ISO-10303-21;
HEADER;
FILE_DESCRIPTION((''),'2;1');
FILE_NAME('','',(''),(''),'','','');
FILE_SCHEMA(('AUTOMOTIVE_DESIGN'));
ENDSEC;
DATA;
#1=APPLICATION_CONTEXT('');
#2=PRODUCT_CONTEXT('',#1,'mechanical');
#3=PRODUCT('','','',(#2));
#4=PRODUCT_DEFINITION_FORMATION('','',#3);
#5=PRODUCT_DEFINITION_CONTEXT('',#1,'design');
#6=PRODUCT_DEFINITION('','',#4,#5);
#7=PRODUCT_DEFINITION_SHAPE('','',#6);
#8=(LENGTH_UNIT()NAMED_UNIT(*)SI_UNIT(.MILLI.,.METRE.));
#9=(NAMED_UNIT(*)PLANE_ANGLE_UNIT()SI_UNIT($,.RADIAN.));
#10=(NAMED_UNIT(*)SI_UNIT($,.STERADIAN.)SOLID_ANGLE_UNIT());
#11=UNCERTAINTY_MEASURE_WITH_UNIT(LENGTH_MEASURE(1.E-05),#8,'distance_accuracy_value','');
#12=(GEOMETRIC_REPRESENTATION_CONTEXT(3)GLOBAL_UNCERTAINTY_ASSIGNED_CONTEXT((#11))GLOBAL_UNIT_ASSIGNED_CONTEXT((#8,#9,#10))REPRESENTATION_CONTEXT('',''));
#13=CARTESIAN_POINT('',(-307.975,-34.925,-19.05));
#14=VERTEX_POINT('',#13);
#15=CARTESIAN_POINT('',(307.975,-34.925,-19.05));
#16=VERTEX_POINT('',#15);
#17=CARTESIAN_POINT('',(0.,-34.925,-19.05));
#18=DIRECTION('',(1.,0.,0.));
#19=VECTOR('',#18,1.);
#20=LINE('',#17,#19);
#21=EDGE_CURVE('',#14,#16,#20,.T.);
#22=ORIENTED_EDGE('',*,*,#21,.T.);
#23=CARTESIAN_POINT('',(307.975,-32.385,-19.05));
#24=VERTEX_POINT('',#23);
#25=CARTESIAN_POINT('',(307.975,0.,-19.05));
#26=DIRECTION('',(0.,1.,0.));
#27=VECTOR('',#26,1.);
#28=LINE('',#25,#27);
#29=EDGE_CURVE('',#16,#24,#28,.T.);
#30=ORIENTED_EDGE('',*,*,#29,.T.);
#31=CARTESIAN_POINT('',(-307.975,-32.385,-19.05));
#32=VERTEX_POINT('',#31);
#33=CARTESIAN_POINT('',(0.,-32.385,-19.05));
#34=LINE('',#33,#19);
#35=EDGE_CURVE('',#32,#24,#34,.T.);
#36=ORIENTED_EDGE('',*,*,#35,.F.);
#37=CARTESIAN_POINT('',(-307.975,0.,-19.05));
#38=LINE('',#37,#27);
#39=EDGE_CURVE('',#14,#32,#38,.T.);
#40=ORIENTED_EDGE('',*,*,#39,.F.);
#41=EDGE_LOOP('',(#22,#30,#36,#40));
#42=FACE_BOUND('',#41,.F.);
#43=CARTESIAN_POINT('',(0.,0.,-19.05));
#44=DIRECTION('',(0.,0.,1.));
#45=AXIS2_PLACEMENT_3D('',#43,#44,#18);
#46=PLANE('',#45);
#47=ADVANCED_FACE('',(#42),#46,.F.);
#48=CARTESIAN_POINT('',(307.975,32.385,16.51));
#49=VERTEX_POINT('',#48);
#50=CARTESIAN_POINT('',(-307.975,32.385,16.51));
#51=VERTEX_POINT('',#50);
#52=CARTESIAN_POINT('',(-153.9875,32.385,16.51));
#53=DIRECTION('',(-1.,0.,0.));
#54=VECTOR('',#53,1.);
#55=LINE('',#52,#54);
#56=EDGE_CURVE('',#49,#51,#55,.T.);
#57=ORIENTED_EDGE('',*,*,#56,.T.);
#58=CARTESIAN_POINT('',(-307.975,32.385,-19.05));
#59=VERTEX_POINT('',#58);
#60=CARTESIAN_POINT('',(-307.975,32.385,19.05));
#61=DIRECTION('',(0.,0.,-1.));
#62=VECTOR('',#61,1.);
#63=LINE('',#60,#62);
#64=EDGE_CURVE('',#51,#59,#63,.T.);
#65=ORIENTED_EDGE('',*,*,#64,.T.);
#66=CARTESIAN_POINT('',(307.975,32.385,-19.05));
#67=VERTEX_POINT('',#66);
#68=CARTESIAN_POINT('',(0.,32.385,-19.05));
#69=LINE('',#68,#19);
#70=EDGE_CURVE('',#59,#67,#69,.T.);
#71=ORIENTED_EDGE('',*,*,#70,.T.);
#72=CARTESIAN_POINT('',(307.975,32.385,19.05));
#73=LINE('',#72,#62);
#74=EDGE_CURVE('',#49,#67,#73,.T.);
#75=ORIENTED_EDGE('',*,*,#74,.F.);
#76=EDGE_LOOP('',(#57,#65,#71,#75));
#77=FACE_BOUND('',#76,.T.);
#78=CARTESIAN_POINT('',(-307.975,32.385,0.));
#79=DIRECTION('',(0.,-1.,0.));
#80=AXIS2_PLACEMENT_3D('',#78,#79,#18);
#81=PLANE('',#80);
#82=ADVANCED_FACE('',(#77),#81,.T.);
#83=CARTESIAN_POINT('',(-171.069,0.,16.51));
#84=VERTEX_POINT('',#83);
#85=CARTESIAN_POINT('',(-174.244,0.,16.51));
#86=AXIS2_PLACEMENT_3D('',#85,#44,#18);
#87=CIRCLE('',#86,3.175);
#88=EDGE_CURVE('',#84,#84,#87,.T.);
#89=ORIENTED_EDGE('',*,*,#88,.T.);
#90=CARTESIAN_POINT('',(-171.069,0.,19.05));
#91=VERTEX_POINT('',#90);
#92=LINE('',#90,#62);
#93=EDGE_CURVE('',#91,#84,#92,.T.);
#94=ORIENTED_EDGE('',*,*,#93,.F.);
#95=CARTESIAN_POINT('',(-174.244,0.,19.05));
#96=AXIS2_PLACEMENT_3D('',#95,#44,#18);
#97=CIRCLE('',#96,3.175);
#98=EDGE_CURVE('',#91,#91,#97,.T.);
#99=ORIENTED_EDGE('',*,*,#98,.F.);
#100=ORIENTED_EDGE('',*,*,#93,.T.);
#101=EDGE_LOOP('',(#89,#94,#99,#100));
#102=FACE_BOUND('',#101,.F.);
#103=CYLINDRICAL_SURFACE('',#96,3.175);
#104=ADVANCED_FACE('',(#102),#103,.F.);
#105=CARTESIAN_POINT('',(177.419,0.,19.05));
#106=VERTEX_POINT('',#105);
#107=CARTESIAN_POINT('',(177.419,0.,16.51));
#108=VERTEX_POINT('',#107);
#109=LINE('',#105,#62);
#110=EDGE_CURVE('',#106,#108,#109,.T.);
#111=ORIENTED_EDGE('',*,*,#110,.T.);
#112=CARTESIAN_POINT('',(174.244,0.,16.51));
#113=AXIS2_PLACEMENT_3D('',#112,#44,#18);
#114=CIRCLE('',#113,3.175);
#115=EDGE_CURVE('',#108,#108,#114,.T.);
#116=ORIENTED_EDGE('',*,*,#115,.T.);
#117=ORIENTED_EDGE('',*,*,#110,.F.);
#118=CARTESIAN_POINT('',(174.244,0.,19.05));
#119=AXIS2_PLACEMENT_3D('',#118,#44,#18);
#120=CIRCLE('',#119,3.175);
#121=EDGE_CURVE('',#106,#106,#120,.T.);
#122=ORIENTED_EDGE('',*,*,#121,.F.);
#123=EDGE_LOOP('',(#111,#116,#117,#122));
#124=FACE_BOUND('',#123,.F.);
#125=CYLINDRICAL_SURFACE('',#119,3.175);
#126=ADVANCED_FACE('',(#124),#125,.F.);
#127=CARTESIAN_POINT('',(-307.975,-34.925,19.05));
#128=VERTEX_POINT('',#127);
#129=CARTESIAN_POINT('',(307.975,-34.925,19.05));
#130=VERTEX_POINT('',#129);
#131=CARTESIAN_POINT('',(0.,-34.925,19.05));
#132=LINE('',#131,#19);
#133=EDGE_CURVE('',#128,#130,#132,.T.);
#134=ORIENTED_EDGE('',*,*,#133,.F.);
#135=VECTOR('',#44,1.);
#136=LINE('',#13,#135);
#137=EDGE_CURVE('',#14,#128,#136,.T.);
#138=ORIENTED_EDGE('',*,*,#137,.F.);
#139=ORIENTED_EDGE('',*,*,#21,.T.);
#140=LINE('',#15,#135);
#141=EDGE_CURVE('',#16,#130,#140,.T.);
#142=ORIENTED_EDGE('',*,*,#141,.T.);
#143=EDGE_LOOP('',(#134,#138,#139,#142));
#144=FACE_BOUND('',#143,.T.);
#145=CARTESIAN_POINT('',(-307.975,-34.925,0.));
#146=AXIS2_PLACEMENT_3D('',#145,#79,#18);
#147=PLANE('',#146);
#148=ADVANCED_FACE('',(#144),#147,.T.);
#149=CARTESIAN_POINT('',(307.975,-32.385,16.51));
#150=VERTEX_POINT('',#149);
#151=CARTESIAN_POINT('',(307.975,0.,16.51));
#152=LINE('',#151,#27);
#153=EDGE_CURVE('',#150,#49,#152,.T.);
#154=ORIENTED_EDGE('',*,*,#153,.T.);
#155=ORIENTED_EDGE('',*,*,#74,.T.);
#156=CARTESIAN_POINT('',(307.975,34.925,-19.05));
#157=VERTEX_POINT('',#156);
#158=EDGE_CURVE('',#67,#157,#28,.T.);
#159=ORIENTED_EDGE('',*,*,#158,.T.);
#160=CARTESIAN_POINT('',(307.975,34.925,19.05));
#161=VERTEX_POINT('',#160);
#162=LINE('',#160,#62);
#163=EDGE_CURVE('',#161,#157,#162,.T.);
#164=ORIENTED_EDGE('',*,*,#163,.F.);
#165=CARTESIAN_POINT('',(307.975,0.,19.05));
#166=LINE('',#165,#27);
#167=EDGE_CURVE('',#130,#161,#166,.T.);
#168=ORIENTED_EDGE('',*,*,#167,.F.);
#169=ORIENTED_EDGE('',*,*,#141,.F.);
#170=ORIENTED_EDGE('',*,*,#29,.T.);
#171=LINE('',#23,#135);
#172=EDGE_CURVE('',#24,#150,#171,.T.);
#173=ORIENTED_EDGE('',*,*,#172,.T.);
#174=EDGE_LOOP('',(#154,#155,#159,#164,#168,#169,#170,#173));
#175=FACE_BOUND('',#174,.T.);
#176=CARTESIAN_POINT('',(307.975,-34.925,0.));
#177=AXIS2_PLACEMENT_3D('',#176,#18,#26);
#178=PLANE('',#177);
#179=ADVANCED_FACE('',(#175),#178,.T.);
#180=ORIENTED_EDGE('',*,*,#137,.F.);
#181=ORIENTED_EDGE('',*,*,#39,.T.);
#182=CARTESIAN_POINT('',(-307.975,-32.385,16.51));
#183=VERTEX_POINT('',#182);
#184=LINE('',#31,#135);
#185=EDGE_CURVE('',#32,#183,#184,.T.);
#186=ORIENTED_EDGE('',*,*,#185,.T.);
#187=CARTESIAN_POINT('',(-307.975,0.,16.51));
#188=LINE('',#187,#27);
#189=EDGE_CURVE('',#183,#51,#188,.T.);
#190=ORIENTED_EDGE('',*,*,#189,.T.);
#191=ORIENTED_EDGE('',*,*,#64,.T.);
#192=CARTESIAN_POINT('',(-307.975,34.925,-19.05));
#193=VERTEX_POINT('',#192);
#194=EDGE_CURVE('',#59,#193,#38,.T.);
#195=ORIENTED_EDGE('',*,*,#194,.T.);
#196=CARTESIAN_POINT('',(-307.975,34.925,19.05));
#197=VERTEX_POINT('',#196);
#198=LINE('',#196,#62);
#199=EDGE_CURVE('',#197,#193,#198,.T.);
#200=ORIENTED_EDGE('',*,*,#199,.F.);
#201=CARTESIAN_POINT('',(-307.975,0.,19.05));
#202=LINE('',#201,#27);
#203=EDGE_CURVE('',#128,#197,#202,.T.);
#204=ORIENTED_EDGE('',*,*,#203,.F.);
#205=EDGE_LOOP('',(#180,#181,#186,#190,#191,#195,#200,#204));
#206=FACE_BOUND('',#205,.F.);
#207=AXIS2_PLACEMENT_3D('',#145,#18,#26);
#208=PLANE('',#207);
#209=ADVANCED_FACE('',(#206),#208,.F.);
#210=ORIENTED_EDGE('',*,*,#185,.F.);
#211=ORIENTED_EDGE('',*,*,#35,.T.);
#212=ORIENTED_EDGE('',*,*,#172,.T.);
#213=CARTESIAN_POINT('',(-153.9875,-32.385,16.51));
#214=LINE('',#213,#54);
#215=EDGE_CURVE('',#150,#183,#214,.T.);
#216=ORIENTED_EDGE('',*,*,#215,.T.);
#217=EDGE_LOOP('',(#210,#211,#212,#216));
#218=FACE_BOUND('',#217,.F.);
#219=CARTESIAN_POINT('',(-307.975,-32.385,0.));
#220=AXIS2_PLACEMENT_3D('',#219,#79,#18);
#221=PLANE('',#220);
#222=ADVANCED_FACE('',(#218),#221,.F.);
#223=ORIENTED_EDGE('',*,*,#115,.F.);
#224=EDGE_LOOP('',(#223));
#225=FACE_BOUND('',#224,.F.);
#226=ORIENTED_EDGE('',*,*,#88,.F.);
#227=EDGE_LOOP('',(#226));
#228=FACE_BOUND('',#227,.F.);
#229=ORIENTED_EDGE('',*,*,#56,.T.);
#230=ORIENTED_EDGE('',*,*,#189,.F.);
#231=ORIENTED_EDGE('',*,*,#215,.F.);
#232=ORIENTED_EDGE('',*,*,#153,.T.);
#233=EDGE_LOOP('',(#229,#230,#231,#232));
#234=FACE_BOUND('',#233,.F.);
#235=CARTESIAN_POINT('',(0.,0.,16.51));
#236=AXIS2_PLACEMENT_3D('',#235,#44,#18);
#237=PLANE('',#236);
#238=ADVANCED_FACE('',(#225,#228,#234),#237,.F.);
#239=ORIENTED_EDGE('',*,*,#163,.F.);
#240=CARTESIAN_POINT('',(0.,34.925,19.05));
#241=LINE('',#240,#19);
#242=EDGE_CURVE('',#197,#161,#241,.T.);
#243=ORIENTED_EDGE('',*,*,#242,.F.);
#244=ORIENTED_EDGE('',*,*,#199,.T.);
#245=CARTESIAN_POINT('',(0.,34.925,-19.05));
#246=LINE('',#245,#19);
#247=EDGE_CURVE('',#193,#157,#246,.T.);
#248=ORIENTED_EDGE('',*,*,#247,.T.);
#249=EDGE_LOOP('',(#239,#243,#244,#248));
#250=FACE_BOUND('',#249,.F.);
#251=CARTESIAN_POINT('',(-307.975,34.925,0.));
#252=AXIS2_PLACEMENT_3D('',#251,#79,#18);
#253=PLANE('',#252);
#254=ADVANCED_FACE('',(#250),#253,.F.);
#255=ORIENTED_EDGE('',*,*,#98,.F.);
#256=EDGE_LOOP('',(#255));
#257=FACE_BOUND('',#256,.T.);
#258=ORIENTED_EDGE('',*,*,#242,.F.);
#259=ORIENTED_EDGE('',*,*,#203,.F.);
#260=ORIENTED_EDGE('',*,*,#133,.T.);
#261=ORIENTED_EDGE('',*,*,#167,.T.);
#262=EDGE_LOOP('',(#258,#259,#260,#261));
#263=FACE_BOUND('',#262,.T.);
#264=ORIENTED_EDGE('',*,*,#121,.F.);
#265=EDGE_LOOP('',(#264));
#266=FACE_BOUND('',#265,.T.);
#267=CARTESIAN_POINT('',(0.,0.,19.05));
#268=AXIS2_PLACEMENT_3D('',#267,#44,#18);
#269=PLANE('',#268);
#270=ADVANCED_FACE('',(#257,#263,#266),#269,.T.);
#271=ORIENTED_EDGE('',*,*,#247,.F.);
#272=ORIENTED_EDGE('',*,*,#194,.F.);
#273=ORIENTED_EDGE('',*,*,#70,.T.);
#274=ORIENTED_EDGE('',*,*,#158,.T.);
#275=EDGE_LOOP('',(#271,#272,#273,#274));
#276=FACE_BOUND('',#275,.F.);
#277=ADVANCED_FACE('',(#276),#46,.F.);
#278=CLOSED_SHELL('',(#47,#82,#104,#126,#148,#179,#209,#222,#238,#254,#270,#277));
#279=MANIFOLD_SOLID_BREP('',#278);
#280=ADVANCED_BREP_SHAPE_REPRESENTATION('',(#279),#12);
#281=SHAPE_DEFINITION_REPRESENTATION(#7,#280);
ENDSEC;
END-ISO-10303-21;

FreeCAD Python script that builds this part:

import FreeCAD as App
import Part
import Sketcher
Q = App.Units.Quantity


def faces_at(feature, points):
    """Names of the faces that lie closest to the given points."""
    faces = feature.Shape.Faces
    near = lambda p: min(range(len(faces)), key=lambda i: faces[i].distToShape(Part.Vertex(*p))[0])
    return sorted({f"Face{near(p) + 1}" for p in points})


def add_polygon(sketch, points):
    """Adds a closed chain of lines whose ends are joined by coincident constraints."""
    first, n = sketch.GeometryCount, len(points)
    for a, b in zip(points, points[1:] + points[:1]):
        sketch.addGeometry(Part.LineSegment(App.Vector(*a, 0), App.Vector(*b, 0)), False)
    for i in range(n):
        sketch.addConstraint(Sketcher.Constraint("Coincident", first + i, 2, first + (i + 1) % n, 1))

doc = App.newDocument("Part")
body = doc.addObject("PartDesign::Body", "Body")

sketch1 = body.newObject("Sketcher::SketchObject", "Sketch")
sketch1.AttachmentSupport = (doc.getObject("XY_Plane"), [""])
sketch1.MapMode = "FlatFace"
add_polygon(sketch1, [(-308, 35), (-308, -35), (308, -35), (308, 35)])
sketch1.addConstraint(Sketcher.Constraint("Vertical", 0))
sketch1.addConstraint(Sketcher.Constraint("Horizontal", 1))
sketch1.addConstraint(Sketcher.Constraint("Vertical", 2))
sketch1.addConstraint(Sketcher.Constraint("Horizontal", 3))
sketch1.addConstraint(Sketcher.Constraint("Symmetric", 0, 2, 2, 2, -1, 1))
sketch1.addConstraint(Sketcher.Constraint("DistanceX", 1, 1, 1, 2, Q("24.25 in")))
sketch1.addConstraint(Sketcher.Constraint("DistanceY", 0, 2, 0, 1, Q("2.75 in")))
pad1 = body.newObject("PartDesign::Pad", "Pad")
pad1.Profile = sketch1
pad1.Length = Q("1.5 in")
pad1.Midplane = True
doc.recompute()

thickness = body.newObject("PartDesign::Thickness", "Thickness")
thickness.Base = (pad1, faces_at(pad1, [(0, 0, -19.05), (307.975, 0, 0), (-307.975, 0, 0)]))
thickness.Value = Q("0.1 in")
thickness.Reversed = True
thickness.Join = "Arc"

sketch2 = body.newObject("Sketcher::SketchObject", "Sketch001")
sketch2.AttachmentSupport = (doc.getObject("XY_Plane"), [""])
sketch2.MapMode = "FlatFace"
sketch2.AttachmentOffset = App.Placement(App.Vector(0, 0, 0.75 * 25.4), App.Rotation())
sketch2.addGeometry(Part.Circle(App.Vector(-174.2, 0, 0), App.Vector(0, 0, 1), 3.2), False)
sketch2.addGeometry(Part.Circle(App.Vector(174.2, 0, 0), App.Vector(0, 0, 1), 3.2), False)
sketch2.addConstraint(Sketcher.Constraint("Equal", 0, 1))
sketch2.addConstraint(Sketcher.Constraint("Symmetric", 0, 3, 1, 3, -1, 1))
sketch2.addConstraint(Sketcher.Constraint("PointOnObject", 0, 3, -1))
sketch2.addConstraint(Sketcher.Constraint("Diameter", 0, Q("0.25 in")))
sketch2.addConstraint(Sketcher.Constraint("DistanceX", 0, 3, -1, 1, Q("6.86 in")))
pocket1 = body.newObject("PartDesign::Pocket", "Pocket")
pocket1.Profile = sketch2
pocket1.Type = "ThroughAll"

doc.recompute()
